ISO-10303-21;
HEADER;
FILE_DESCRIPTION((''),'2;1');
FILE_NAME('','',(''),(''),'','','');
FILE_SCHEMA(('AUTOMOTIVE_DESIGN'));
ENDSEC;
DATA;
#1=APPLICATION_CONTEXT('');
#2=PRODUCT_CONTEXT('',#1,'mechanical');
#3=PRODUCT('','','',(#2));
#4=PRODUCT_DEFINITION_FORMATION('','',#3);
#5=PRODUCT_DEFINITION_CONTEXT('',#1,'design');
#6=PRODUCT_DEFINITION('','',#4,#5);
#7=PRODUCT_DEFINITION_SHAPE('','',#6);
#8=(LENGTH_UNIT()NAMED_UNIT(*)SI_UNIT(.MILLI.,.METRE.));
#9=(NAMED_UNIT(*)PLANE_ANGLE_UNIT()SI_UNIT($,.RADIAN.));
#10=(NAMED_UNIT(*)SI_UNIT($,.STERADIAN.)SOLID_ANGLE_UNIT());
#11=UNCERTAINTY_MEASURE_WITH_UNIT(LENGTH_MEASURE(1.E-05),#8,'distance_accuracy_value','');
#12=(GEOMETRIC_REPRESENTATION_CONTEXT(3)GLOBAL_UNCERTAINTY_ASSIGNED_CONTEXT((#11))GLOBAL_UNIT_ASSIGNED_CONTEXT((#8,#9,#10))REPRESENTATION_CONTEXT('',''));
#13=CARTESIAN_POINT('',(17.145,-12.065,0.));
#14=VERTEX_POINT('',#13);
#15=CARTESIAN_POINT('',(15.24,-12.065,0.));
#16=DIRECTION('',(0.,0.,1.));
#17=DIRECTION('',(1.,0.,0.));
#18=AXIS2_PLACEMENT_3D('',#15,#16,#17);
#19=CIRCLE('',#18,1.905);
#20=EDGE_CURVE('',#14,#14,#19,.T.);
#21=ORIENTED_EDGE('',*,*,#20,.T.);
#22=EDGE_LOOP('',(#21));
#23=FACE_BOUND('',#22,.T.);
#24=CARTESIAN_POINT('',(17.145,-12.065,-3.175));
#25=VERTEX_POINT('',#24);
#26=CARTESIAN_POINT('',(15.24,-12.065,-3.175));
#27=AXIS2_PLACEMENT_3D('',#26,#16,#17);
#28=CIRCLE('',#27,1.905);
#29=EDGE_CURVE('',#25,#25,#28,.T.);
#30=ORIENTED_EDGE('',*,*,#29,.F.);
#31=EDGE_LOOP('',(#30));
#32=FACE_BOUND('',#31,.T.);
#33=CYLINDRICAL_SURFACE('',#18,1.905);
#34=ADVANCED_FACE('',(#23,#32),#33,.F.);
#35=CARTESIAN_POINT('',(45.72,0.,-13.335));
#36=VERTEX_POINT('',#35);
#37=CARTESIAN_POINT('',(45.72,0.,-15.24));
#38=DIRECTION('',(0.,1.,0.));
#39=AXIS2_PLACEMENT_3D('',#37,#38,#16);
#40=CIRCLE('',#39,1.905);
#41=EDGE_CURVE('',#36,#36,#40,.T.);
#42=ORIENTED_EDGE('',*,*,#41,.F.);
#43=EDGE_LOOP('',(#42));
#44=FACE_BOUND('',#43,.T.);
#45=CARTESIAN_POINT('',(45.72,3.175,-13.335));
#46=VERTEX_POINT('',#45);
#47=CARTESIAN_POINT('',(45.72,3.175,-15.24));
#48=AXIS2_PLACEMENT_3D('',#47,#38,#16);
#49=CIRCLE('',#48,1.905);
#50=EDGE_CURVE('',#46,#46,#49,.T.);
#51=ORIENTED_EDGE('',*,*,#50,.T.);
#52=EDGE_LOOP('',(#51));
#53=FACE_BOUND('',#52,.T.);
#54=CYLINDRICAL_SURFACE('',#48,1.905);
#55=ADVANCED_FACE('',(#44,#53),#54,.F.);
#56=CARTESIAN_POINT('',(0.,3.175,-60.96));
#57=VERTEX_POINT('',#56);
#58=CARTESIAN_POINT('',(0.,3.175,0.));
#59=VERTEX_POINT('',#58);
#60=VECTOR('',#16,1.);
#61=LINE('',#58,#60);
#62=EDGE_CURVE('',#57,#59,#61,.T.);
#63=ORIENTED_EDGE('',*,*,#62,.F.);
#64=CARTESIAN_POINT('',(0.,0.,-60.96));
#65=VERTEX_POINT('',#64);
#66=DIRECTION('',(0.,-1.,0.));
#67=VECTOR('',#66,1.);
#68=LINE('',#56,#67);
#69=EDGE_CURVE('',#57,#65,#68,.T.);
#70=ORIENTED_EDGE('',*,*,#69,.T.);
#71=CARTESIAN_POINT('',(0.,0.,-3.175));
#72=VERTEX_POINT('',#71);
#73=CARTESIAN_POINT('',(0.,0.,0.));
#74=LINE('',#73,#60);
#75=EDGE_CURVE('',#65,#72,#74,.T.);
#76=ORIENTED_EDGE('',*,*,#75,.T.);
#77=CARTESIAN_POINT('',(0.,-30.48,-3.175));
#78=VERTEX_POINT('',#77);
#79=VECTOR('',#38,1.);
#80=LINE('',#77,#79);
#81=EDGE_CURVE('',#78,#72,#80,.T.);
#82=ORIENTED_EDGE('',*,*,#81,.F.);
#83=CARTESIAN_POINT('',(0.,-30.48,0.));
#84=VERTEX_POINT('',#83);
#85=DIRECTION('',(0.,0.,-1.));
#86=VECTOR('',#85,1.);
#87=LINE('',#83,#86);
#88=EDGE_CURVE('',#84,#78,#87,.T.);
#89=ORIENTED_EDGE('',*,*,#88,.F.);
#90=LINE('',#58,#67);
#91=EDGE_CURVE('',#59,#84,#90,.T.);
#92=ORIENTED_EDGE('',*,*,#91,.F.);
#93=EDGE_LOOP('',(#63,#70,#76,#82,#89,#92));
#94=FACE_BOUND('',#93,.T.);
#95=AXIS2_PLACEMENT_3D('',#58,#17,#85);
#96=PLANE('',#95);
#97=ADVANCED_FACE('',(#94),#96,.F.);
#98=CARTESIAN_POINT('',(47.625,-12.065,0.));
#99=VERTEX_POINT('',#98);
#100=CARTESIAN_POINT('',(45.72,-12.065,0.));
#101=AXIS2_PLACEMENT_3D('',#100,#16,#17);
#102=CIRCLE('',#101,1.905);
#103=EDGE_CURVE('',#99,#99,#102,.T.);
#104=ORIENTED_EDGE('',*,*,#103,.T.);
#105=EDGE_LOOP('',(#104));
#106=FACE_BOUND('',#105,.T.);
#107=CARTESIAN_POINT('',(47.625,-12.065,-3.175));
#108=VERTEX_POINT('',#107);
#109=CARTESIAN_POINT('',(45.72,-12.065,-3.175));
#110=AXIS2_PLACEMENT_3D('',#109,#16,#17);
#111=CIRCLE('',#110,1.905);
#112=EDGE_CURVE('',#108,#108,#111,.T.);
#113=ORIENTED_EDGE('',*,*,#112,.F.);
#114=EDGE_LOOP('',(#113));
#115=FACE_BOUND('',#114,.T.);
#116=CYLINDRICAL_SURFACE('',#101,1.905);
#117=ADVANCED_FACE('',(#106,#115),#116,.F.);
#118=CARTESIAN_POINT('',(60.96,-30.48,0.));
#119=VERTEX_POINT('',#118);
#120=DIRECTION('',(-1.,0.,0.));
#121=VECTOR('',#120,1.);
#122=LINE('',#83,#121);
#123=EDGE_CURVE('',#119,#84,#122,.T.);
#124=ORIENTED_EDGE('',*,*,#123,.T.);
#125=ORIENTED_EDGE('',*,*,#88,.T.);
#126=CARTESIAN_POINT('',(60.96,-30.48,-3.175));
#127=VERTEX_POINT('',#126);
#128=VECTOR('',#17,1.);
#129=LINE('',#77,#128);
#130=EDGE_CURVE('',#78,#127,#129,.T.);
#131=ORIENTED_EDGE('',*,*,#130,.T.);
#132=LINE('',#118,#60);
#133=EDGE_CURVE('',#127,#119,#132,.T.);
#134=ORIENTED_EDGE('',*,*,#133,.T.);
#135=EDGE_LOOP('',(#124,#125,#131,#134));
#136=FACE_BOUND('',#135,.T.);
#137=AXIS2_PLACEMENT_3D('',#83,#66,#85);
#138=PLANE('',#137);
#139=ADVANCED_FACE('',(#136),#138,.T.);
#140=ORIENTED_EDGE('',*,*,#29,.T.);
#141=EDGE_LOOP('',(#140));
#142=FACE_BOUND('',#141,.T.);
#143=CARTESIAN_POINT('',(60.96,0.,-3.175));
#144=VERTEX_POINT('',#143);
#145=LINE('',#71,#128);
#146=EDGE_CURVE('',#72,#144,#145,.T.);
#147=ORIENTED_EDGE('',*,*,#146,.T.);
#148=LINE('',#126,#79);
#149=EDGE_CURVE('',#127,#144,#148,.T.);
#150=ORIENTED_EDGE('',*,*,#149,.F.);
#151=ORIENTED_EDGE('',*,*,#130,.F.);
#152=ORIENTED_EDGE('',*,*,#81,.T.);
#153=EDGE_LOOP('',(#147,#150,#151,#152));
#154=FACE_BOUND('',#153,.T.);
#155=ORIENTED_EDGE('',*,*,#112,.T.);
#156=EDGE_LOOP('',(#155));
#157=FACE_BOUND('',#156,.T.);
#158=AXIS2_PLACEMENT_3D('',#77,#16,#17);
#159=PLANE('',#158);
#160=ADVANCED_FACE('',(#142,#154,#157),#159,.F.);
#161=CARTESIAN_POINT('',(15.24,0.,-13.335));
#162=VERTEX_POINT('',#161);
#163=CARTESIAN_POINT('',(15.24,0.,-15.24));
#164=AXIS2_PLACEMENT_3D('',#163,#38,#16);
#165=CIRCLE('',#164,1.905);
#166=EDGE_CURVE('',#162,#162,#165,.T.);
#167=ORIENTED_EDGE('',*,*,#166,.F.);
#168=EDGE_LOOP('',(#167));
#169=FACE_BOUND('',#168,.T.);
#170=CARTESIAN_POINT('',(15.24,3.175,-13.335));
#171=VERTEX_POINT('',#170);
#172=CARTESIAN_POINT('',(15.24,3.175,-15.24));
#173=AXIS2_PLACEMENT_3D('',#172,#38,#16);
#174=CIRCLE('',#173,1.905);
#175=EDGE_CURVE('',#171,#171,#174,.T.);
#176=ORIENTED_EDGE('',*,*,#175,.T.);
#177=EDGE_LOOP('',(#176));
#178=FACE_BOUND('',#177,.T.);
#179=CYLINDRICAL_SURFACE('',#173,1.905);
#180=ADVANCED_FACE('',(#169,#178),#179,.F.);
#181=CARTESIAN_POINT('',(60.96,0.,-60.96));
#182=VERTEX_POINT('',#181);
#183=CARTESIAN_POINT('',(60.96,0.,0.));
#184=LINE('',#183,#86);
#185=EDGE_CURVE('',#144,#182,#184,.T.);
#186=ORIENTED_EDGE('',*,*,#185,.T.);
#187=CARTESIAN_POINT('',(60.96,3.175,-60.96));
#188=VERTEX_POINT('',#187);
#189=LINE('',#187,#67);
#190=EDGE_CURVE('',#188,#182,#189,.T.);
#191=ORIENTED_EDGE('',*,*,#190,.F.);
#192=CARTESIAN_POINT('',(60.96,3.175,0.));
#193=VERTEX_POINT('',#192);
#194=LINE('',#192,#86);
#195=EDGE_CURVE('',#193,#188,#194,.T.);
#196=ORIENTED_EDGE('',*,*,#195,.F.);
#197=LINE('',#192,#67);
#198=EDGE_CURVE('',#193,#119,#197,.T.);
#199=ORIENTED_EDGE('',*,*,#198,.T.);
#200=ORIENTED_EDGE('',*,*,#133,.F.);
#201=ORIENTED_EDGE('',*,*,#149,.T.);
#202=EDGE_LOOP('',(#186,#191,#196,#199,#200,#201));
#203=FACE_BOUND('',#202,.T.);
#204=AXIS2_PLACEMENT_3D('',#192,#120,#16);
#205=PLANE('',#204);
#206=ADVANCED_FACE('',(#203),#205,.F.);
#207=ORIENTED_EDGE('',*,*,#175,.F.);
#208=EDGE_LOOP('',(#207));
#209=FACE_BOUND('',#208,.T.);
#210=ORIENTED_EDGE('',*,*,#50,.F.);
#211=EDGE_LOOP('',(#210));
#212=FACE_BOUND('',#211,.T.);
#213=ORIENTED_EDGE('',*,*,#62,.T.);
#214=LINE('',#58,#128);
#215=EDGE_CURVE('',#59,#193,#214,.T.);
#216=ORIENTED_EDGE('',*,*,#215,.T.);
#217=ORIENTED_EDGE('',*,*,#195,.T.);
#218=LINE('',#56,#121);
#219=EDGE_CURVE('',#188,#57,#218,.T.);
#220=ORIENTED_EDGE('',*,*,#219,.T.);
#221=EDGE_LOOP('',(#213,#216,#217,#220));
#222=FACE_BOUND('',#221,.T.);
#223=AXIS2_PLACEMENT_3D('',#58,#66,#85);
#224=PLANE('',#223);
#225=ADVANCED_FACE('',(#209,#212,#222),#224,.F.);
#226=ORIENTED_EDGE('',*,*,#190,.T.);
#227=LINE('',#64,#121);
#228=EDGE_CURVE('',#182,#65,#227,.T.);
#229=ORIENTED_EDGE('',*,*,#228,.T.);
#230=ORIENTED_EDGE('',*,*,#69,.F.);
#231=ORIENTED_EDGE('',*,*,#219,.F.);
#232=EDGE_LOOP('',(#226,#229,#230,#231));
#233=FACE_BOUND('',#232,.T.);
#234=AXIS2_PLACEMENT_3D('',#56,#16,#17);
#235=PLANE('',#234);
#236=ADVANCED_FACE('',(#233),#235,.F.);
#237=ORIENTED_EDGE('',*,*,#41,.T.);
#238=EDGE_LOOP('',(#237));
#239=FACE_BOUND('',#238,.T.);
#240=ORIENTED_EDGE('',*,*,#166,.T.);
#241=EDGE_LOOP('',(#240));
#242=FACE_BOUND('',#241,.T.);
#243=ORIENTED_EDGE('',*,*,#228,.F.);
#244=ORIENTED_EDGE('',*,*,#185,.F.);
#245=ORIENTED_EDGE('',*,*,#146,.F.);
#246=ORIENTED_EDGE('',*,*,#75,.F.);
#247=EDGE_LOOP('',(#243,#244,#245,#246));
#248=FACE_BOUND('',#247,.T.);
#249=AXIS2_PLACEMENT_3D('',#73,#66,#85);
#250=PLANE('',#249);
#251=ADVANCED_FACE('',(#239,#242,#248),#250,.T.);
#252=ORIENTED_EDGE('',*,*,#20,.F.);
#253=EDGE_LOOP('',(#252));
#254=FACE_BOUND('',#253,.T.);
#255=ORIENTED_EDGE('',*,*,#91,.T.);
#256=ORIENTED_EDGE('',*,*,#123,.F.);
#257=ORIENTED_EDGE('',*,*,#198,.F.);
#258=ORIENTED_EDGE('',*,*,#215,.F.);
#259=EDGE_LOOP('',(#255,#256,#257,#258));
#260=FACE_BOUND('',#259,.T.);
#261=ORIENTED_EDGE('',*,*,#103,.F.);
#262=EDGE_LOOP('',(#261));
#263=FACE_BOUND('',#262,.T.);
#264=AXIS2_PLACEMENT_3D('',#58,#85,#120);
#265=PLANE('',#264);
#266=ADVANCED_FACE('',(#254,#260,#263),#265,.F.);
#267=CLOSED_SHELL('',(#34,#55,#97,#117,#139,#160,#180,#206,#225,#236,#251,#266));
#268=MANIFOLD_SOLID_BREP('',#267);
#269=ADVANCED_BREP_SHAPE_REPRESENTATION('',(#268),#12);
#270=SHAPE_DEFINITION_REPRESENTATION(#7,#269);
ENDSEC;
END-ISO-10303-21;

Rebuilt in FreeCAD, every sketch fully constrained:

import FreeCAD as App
import Part
import Sketcher
from FreeCAD import Vector
Q = App.Units.Quantity

doc = App.newDocument("Part")
body = doc.addObject("PartDesign::Body", "Body")

# Sketch on XZ plane
sketch1 = doc.addObject("Sketcher::SketchObject", "Sketch")
body.addObject(sketch1)
sketch1.AttachmentSupport = (doc.XZ_Plane, [""])
sketch1.MapMode = "FlatFace"
sketch1.addGeometry(Part.LineSegment(Vector(0, -61, 0), Vector(0, 0, 0)), False)
sketch1.addGeometry(Part.LineSegment(Vector(0, 0, 0), Vector(61, 0, 0)), False)
sketch1.addGeometry(Part.LineSegment(Vector(61, 0, 0), Vector(61, -61, 0)), False)
sketch1.addGeometry(Part.LineSegment(Vector(61, -61, 0), Vector(0, -61, 0)), False)
sketch1.addConstraint(Sketcher.Constraint("Coincident", 0, 2, 1, 1))
sketch1.addConstraint(Sketcher.Constraint("Coincident", 1, 2, 2, 1))
sketch1.addConstraint(Sketcher.Constraint("Coincident", 2, 2, 3, 1))
sketch1.addConstraint(Sketcher.Constraint("Coincident", 3, 2, 0, 1))
sketch1.addConstraint(Sketcher.Constraint("Vertical", 0))
sketch1.addConstraint(Sketcher.Constraint("Horizontal", 1))
sketch1.addConstraint(Sketcher.Constraint("Vertical", 2))
sketch1.addConstraint(Sketcher.Constraint("Horizontal", 3))
sketch1.addConstraint(Sketcher.Constraint("Coincident", 0, 2, -1, 1))
sketch1.addConstraint(Sketcher.Constraint("Equal", 3, 0))
sketch1.addConstraint(Sketcher.Constraint("DistanceX", 1, 1, 1, 2, Q("2.4 in")))
pad1 = doc.addObject("PartDesign::Pad", "Pad")
body.addObject(pad1)
pad1.Profile = sketch1
pad1.Length = Q("0.125 in")
pad1.Reversed = True

# Sketch on XZ plane
sketch2 = doc.addObject("Sketcher::SketchObject", "Sketch001")
body.addObject(sketch2)
sketch2.AttachmentSupport = (doc.XZ_Plane, [""])
sketch2.MapMode = "FlatFace"
sketch2.AttachmentOffset = App.Placement(Vector(0, 0, -0.125 * 25.4), App.Rotation())
sketch2.addGeometry(Part.Circle(Vector(15.2, -15.2, 0), Vector(0, 0, 1), 1.9), False)
sketch2.addGeometry(Part.Circle(Vector(45.7, -15.2, 0), Vector(0, 0, 1), 1.9), False)
sketch2.addConstraint(Sketcher.Constraint("Equal", 0, 1))
sketch2.addConstraint(Sketcher.Constraint("Horizontal", 0, 3, 1, 3))
sketch2.addConstraint(Sketcher.Constraint("Diameter", 0, Q("0.15 in")))
sketch2.addConstraint(Sketcher.Constraint("DistanceX", -1, 1, 0, 3, Q("0.6 in")))
sketch2.addConstraint(Sketcher.Constraint("DistanceY", 0, 3, -1, 1, Q("0.6 in")))
sketch2.addConstraint(Sketcher.Constraint("DistanceX", -1, 1, 1, 3, Q("1.8 in")))
doc.recompute()
hole = doc.addObject("PartDesign::Hole", "Hole")
body.addObject(hole)
hole.Profile = sketch2
hole.ThreadType = "None"
hole.Diameter = Q("0.15 in")
hole.DepthType = "ThroughAll"
hole.Reversed = True

# Sketch on XZ plane
sketch3 = doc.addObject("Sketcher::SketchObject", "Sketch002")
body.addObject(sketch3)
sketch3.AttachmentSupport = (doc.XZ_Plane, [""])
sketch3.MapMode = "FlatFace"
sketch3.addGeometry(Part.LineSegment(Vector(0, 0, 0), Vector(0, -3.2, 0)), False)
sketch3.addGeometry(Part.LineSegment(Vector(0, -3.2, 0), Vector(61, -3.2, 0)), False)
sketch3.addGeometry(Part.LineSegment(Vector(61, -3.2, 0), Vector(61, 0, 0)), False)
sketch3.addGeometry(Part.LineSegment(Vector(61, 0, 0), Vector(0, 0, 0)), False)
sketch3.addConstraint(Sketcher.Constraint("Coincident", 0, 2, 1, 1))
sketch3.addConstraint(Sketcher.Constraint("Coincident", 1, 2, 2, 1))
sketch3.addConstraint(Sketcher.Constraint("Coincident", 2, 2, 3, 1))
sketch3.addConstraint(Sketcher.Constraint("Coincident", 3, 2, 0, 1))
sketch3.addConstraint(Sketcher.Constraint("Vertical", 0))
sketch3.addConstraint(Sketcher.Constraint("Horizontal", 1))
sketch3.addConstraint(Sketcher.Constraint("Vertical", 2))
sketch3.addConstraint(Sketcher.Constraint("Horizontal", 3))
sketch3.addConstraint(Sketcher.Constraint("Coincident", 3, 2, -1, 1))
sketch3.addConstraint(Sketcher.Constraint("DistanceX", 1, 1, 1, 2, Q("2.4 in")))
sketch3.addConstraint(Sketcher.Constraint("DistanceY", 0, 2, 0, 1, Q("0.125 in")))
pad2 = doc.addObject("PartDesign::Pad", "Pad001")
body.addObject(pad2)
pad2.Profile = sketch3
pad2.Length = Q("1.2 in")

# Sketch on XY plane
sketch4 = doc.addObject("Sketcher::SketchObject", "Sketch003")
body.addObject(sketch4)
sketch4.AttachmentSupport = (doc.XY_Plane, [""])
sketch4.MapMode = "FlatFace"
sketch4.addGeometry(Part.Circle(Vector(15.2, -12.1, 0), Vector(0, 0, 1), 1.9), False)
sketch4.addGeometry(Part.Circle(Vector(45.7, -12.1, 0), Vector(0, 0, 1), 1.9), False)
sketch4.addConstraint(Sketcher.Constraint("Equal", 0, 1))
sketch4.addConstraint(Sketcher.Constraint("Horizontal", 0, 3, 1, 3))
sketch4.addConstraint(Sketcher.Constraint("Diameter", 0, Q("0.15 in")))
sketch4.addConstraint(Sketcher.Constraint("DistanceX", -1, 1, 0, 3, Q("0.6 in")))
sketch4.addConstraint(Sketcher.Constraint("DistanceX", -1, 1, 1, 3, Q("1.8 in")))
sketch4.addConstraint(Sketcher.Constraint("DistanceY", 0, 3, -1, 1, Q("0.475 in")))
doc.recompute()
hole2 = doc.addObject("PartDesign::Hole", "Hole001")
body.addObject(hole2)
hole2.Profile = sketch4
hole2.ThreadType = "None"
hole2.Diameter = Q("0.15 in")
hole2.DepthType = "ThroughAll"

doc.recompute()
